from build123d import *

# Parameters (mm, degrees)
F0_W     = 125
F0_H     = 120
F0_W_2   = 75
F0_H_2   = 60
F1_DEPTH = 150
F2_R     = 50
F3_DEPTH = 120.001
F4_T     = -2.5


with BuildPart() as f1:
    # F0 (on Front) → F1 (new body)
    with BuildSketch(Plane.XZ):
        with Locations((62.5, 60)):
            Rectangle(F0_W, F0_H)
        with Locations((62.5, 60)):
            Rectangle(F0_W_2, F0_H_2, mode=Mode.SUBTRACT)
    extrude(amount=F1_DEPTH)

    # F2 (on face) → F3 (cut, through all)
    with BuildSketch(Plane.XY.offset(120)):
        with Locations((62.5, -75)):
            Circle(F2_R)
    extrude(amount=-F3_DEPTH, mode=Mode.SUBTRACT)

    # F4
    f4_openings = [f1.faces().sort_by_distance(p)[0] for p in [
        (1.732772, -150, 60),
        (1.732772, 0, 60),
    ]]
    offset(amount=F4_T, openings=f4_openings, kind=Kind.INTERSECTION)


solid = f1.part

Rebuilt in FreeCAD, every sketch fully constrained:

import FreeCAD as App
import Part
import Sketcher

V = App.Vector


def faces_at(feature, points):
    """Names of the faces that lie closest to the given points."""
    faces = feature.Shape.Faces
    near = lambda p: min(range(len(faces)), key=lambda i: faces[i].distToShape(Part.Vertex(*p))[0])
    return sorted({f"Face{near(p) + 1}" for p in points})


def add_polygon(sketch, points):
    """Adds a closed chain of lines whose ends are joined by coincident constraints."""
    first, n = sketch.GeometryCount, len(points)
    for a, b in zip(points, points[1:] + points[:1]):
        sketch.addGeometry(Part.LineSegment(App.Vector(*a, 0), App.Vector(*b, 0)), False)
    for i in range(n):
        sketch.addConstraint(Sketcher.Constraint("Coincident", first + i, 2, first + (i + 1) % n, 1))

doc = App.newDocument("Part")
params = doc.addObject("Spreadsheet::Sheet", "Params")
for row, (alias, value) in enumerate([
    ("sketch1_width", "125 mm"),
    ("sketch1_width2", "75 mm"),
    ("sketch1_height", "120 mm"),
    ("sketch1_height2", "60 mm"),
    ("pad1_length", "150 mm"),
    ("sketch2_diameter", "100 mm"),
    ("thickness_wall", "2.5 mm"),
], start=1):
    params.set(f"A{row}", alias)
    params.set(f"B{row}", "=" + value)
    params.setAlias(f"B{row}", alias)

body = doc.addObject("PartDesign::Body", "Body")

sketch1 = doc.addObject("Sketcher::SketchObject", "Sketch")
body.addObject(sketch1)
sketch1.AttachmentSupport = (doc.XZ_Plane, [""])
sketch1.MapMode = "FlatFace"
add_polygon(sketch1, [(0, 120), (0, 0), (125, 0), (125, 120)])
add_polygon(sketch1, [(100, 30), (25, 30), (25, 90), (100, 90)])
sketch1.addConstraint(Sketcher.Constraint("Vertical", 0))
sketch1.addConstraint(Sketcher.Constraint("Horizontal", 1))
sketch1.addConstraint(Sketcher.Constraint("Vertical", 2))
sketch1.addConstraint(Sketcher.Constraint("Horizontal", 3))
sketch1.addConstraint(Sketcher.Constraint("Horizontal", 4))
sketch1.addConstraint(Sketcher.Constraint("Vertical", 5))
sketch1.addConstraint(Sketcher.Constraint("Horizontal", 6))
sketch1.addConstraint(Sketcher.Constraint("Vertical", 7))
sketch1.addConstraint(Sketcher.Constraint("Coincident", 0, 2, -1, 1))
sketch1.addConstraint(Sketcher.Constraint("DistanceX", 1, 1, 1, 2, 125.0))
sketch1.addConstraint(Sketcher.Constraint("DistanceX", 4, 2, 4, 1, 75.0))
sketch1.addConstraint(Sketcher.Constraint("DistanceY", 0, 2, 0, 1, 120.0))
sketch1.addConstraint(Sketcher.Constraint("DistanceY", 5, 1, 5, 2, 60.0))
sketch1.addConstraint(Sketcher.Constraint("DistanceX", -1, 1, 4, 2, 25.0))
sketch1.addConstraint(Sketcher.Constraint("DistanceY", -1, 1, 4, 2, 30.0))
sketch1.setExpression("Constraints[17]", "Params.sketch1_width")
sketch1.setExpression("Constraints[18]", "Params.sketch1_width2")
sketch1.setExpression("Constraints[19]", "Params.sketch1_height")
sketch1.setExpression("Constraints[20]", "Params.sketch1_height2")
pad1 = doc.addObject("PartDesign::Pad", "Pad")
body.addObject(pad1)
pad1.Profile = sketch1
pad1.setExpression("Length", "Params.pad1_length")

sketch2 = doc.addObject("Sketcher::SketchObject", "Sketch001")
body.addObject(sketch2)
sketch2.AttachmentSupport = (doc.XY_Plane, [""])
sketch2.MapMode = "FlatFace"
sketch2.AttachmentOffset = App.Placement(V(0, 0, 120), App.Rotation())
sketch2.addGeometry(Part.Circle(V(62, -75, 0), V(0, 0, 1), 50), False)
sketch2.addConstraint(Sketcher.Constraint("Diameter", 0, 100.0))
sketch2.addConstraint(Sketcher.Constraint("DistanceY", 0, 3, -1, 1, 75.0))
sketch2.addConstraint(Sketcher.Constraint("DistanceX", -1, 1, 0, 3, 62.5))
sketch2.setExpression("Constraints[0]", "Params.sketch2_diameter")
pocket1 = doc.addObject("PartDesign::Pocket", "Pocket")
body.addObject(pocket1)
pocket1.Profile = sketch2
pocket1.Type = "ThroughAll"
doc.recompute()

thickness = doc.addObject("PartDesign::Thickness", "Thickness")
body.addObject(thickness)
thickness.Base = (pocket1, faces_at(pocket1, [(12.5, -150, 60), (12.5, 0, 60)]))
thickness.setExpression("Value", "Params.thickness_wall")
thickness.Reversed = True
thickness.Join = "Intersection"

doc.recompute()
